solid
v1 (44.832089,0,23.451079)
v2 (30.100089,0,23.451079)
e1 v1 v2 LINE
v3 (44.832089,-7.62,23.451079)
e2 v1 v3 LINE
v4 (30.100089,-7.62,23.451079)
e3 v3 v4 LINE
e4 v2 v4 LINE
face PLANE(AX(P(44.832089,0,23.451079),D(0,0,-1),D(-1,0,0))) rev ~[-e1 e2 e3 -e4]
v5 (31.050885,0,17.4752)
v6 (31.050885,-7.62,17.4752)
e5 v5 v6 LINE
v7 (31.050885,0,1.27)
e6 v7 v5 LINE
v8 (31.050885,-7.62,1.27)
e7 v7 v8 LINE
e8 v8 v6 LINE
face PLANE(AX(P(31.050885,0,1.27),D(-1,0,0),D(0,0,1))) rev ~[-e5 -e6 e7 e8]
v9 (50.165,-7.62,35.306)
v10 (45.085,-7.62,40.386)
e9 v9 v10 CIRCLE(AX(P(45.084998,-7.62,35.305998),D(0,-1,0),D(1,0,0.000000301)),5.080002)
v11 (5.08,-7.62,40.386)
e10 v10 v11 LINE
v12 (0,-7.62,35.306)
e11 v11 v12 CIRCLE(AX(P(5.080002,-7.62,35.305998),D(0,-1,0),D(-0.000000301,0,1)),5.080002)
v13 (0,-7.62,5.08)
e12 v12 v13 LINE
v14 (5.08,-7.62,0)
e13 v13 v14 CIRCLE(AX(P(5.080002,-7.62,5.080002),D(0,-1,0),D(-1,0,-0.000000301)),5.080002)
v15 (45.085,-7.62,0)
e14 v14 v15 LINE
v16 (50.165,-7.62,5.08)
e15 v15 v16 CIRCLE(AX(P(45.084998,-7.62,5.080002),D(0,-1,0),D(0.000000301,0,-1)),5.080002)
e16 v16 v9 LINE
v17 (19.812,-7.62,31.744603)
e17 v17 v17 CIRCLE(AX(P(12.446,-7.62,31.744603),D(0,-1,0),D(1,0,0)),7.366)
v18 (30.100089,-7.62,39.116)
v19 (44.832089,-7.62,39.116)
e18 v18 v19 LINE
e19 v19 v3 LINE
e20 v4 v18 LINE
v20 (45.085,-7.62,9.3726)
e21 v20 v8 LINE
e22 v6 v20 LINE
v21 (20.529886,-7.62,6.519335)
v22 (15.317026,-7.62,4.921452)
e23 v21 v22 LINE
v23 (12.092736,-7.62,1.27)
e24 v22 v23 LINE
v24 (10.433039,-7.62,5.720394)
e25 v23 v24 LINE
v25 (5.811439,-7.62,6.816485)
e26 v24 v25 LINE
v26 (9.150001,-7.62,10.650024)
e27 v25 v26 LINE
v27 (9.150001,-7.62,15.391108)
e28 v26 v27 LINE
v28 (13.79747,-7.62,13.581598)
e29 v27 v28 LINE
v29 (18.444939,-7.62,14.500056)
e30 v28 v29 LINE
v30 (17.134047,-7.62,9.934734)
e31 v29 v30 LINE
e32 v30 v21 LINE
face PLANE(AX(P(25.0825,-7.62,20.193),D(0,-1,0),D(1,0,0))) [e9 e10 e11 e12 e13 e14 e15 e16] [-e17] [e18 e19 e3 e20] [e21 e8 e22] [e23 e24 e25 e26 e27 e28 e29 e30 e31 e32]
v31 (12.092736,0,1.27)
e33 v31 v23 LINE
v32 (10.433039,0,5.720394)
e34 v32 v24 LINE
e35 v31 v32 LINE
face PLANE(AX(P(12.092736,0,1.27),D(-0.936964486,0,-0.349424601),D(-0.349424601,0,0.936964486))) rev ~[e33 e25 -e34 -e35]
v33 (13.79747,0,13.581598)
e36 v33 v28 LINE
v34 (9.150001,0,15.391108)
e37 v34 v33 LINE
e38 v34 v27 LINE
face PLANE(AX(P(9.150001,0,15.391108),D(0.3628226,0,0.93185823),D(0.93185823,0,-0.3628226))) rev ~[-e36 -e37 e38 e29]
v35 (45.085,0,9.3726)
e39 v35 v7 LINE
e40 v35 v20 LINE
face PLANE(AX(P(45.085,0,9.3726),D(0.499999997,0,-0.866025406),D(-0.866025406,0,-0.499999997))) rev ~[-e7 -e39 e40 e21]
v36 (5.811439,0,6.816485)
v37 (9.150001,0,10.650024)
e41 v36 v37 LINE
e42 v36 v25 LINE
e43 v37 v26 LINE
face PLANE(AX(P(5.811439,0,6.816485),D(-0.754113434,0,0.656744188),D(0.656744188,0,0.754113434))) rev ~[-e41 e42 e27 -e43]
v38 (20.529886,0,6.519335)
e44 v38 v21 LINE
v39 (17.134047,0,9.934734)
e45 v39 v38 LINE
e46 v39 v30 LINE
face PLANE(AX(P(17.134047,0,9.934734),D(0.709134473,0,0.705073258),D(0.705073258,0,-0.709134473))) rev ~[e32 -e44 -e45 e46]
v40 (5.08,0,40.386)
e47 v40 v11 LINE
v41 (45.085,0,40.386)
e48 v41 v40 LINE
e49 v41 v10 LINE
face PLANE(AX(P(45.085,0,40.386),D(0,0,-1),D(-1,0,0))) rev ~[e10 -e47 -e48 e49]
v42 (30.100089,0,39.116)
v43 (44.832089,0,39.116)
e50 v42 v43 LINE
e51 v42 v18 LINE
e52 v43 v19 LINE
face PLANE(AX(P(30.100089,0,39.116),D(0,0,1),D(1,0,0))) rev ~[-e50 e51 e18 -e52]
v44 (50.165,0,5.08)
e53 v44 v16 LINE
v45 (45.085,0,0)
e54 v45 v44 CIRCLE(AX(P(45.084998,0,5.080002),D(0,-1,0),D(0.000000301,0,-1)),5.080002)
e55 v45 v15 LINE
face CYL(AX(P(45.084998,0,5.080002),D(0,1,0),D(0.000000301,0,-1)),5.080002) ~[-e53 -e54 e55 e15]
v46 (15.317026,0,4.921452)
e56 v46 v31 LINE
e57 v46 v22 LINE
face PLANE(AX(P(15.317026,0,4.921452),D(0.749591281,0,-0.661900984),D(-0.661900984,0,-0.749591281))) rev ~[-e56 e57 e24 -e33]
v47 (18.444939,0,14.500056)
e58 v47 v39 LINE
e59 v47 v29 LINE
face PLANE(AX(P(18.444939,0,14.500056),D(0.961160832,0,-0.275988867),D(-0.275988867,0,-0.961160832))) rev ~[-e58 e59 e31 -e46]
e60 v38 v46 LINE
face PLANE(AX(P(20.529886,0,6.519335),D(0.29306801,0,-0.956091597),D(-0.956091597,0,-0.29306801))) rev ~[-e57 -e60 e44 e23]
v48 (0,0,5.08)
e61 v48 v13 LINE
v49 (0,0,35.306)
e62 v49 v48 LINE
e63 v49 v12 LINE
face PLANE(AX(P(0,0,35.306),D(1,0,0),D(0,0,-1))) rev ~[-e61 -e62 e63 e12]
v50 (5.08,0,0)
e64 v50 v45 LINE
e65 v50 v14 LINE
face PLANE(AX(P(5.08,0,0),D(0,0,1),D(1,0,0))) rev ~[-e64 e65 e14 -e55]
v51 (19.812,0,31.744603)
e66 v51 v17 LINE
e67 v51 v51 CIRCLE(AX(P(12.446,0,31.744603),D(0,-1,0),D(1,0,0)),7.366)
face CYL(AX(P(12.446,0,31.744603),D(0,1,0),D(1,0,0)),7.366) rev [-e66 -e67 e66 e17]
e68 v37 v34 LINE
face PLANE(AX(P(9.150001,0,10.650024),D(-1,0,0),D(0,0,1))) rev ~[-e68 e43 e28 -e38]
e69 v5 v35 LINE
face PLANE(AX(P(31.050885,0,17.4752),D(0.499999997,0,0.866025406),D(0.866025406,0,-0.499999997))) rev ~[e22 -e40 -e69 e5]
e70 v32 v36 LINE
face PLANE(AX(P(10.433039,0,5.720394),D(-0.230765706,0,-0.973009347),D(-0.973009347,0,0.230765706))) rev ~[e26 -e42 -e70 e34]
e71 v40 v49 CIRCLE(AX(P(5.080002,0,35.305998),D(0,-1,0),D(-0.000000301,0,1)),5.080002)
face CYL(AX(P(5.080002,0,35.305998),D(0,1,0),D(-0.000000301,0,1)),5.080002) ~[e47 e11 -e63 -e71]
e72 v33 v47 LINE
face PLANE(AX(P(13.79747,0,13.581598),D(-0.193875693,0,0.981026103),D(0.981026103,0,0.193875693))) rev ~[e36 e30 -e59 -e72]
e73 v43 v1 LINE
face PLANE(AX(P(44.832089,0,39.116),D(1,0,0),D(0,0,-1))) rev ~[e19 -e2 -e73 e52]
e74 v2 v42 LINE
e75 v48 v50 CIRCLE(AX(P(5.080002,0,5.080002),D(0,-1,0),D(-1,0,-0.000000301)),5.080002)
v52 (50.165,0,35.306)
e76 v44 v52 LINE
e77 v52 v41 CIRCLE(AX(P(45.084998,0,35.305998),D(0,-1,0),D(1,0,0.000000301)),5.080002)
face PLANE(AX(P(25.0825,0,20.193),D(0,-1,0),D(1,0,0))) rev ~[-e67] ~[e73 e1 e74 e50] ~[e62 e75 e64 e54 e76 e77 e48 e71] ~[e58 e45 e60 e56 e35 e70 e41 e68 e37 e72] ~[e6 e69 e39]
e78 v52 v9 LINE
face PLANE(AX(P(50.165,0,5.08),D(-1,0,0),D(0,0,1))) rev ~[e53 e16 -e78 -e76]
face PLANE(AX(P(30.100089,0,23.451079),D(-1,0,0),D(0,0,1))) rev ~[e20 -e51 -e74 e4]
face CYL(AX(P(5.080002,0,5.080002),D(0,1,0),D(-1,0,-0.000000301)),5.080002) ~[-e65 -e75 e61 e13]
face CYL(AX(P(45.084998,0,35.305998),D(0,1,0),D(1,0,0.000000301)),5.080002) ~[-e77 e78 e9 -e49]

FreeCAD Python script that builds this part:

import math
import FreeCAD as App
import Part
import Sketcher
from FreeCAD import Vector
Q = App.Units.Quantity

doc = App.newDocument("Part")
body = doc.addObject("PartDesign::Body", "Body")

sketch1 = body.newObject("Sketcher::SketchObject", "Sketch")
sketch1.AttachmentSupport = (doc.getObject("XZ_Plane"), [""])
sketch1.MapMode = "FlatFace"
sketch1.addGeometry(Part.ArcOfCircle(Part.Circle(Vector(5.080002, 5.080002, 0), Vector(0, 0, 1), 5.080002), math.radians(-179.999983), math.radians(-90.000017)), False)
sketch1.addGeometry(Part.LineSegment(Vector(5.08, 0, 0), Vector(45.085, 0, 0)), False)
sketch1.addGeometry(Part.ArcOfCircle(Part.Circle(Vector(45.084998, 5.080002, 0), Vector(0, 0, 1), 5.080002), math.radians(-89.999983), math.radians(-0.000017)), False)
sketch1.addGeometry(Part.LineSegment(Vector(50.165, 5.08, 0), Vector(50.165, 35.306, 0)), False)
sketch1.addGeometry(Part.ArcOfCircle(Part.Circle(Vector(45.084998, 35.305998, 0), Vector(0, 0, 1), 5.080002), math.radians(0.000017), math.radians(89.999983)), False)
sketch1.addGeometry(Part.LineSegment(Vector(45.085, 40.386, 0), Vector(5.08, 40.386, 0)), False)
sketch1.addGeometry(Part.ArcOfCircle(Part.Circle(Vector(5.080002, 35.305998, 0), Vector(0, 0, 1), 5.080002), math.radians(90.000017), math.radians(179.999983)), False)
sketch1.addGeometry(Part.LineSegment(Vector(0, 35.306, 0), Vector(0, 5.08, 0)), False)
sketch1.addGeometry(Part.LineSegment(Vector(20.529886, 6.519335, 0), Vector(15.317026, 4.921452, 0)), False)
sketch1.addGeometry(Part.LineSegment(Vector(15.317026, 4.921452, 0), Vector(12.092736, 1.27, 0)), False)
sketch1.addGeometry(Part.LineSegment(Vector(12.092736, 1.27, 0), Vector(10.433039, 5.720394, 0)), False)
sketch1.addGeometry(Part.LineSegment(Vector(10.433039, 5.720394, 0), Vector(5.811439, 6.816485, 0)), False)
sketch1.addGeometry(Part.LineSegment(Vector(5.811439, 6.816485, 0), Vector(9.150001, 10.650024, 0)), False)
sketch1.addGeometry(Part.LineSegment(Vector(9.150001, 10.650024, 0), Vector(9.150001, 15.391108, 0)), False)
sketch1.addGeometry(Part.LineSegment(Vector(9.150001, 15.391108, 0), Vector(13.79747, 13.581598, 0)), False)
sketch1.addGeometry(Part.LineSegment(Vector(13.79747, 13.581598, 0), Vector(18.444939, 14.500056, 0)), False)
sketch1.addGeometry(Part.LineSegment(Vector(18.444939, 14.500056, 0), Vector(17.134047, 9.934734, 0)), False)
sketch1.addGeometry(Part.LineSegment(Vector(17.134047, 9.934734, 0), Vector(20.529886, 6.519335, 0)), False)
sketch1.addGeometry(Part.LineSegment(Vector(31.050885, 17.4752, 0), Vector(45.085, 9.3726, 0)), False)
sketch1.addGeometry(Part.LineSegment(Vector(45.085, 9.3726, 0), Vector(31.050885, 1.27, 0)), False)
sketch1.addGeometry(Part.LineSegment(Vector(31.050885, 1.27, 0), Vector(31.050885, 17.4752, 0)), False)
sketch1.addGeometry(Part.Circle(Vector(12.446, 31.744603, 0), Vector(0, 0, 1), 7.366), False)
sketch1.addGeometry(Part.LineSegment(Vector(30.100089, 23.451079, 0), Vector(30.100089, 39.116, 0)), False)
sketch1.addGeometry(Part.LineSegment(Vector(30.100089, 39.116, 0), Vector(44.832089, 39.116, 0)), False)
sketch1.addGeometry(Part.LineSegment(Vector(44.832089, 39.116, 0), Vector(44.832089, 23.451079, 0)), False)
sketch1.addGeometry(Part.LineSegment(Vector(44.832089, 23.451079, 0), Vector(30.100089, 23.451079, 0)), False)
sketch1.addConstraint(Sketcher.Constraint("Coincident", 0, 2, 1, 1))
sketch1.addConstraint(Sketcher.Constraint("Coincident", 1, 2, 2, 1))
sketch1.addConstraint(Sketcher.Constraint("Coincident", 2, 2, 3, 1))
sketch1.addConstraint(Sketcher.Constraint("Coincident", 3, 2, 4, 1))
sketch1.addConstraint(Sketcher.Constraint("Coincident", 4, 2, 5, 1))
sketch1.addConstraint(Sketcher.Constraint("Coincident", 5, 2, 6, 1))
sketch1.addConstraint(Sketcher.Constraint("Coincident", 6, 2, 7, 1))
sketch1.addConstraint(Sketcher.Constraint("Coincident", 7, 2, 0, 1))
sketch1.addConstraint(Sketcher.Constraint("Coincident", 8, 2, 9, 1))
sketch1.addConstraint(Sketcher.Constraint("Coincident", 9, 2, 10, 1))
sketch1.addConstraint(Sketcher.Constraint("Coincident", 10, 2, 11, 1))
sketch1.addConstraint(Sketcher.Constraint("Coincident", 11, 2, 12, 1))
sketch1.addConstraint(Sketcher.Constraint("Coincident", 12, 2, 13, 1))
sketch1.addConstraint(Sketcher.Constraint("Coincident", 13, 2, 14, 1))
sketch1.addConstraint(Sketcher.Constraint("Coincident", 14, 2, 15, 1))
sketch1.addConstraint(Sketcher.Constraint("Coincident", 15, 2, 16, 1))
sketch1.addConstraint(Sketcher.Constraint("Coincident", 16, 2, 17, 1))
sketch1.addConstraint(Sketcher.Constraint("Coincident", 17, 2, 8, 1))
sketch1.addConstraint(Sketcher.Constraint("Coincident", 18, 2, 19, 1))
sketch1.addConstraint(Sketcher.Constraint("Coincident", 19, 2, 20, 1))
sketch1.addConstraint(Sketcher.Constraint("Coincident", 20, 2, 18, 1))
sketch1.addConstraint(Sketcher.Constraint("Coincident", 22, 2, 23, 1))
sketch1.addConstraint(Sketcher.Constraint("Coincident", 23, 2, 24, 1))
sketch1.addConstraint(Sketcher.Constraint("Coincident", 24, 2, 25, 1))
sketch1.addConstraint(Sketcher.Constraint("Coincident", 25, 2, 22, 1))
sketch1.addConstraint(Sketcher.Constraint("Horizontal", 1))
sketch1.addConstraint(Sketcher.Constraint("Vertical", 3))
sketch1.addConstraint(Sketcher.Constraint("Horizontal", 5))
sketch1.addConstraint(Sketcher.Constraint("Vertical", 7))
sketch1.addConstraint(Sketcher.Constraint("Vertical", 13))
sketch1.addConstraint(Sketcher.Constraint("Vertical", 20))
sketch1.addConstraint(Sketcher.Constraint("Vertical", 22))
sketch1.addConstraint(Sketcher.Constraint("Horizontal", 23))
sketch1.addConstraint(Sketcher.Constraint("Vertical", 24))
sketch1.addConstraint(Sketcher.Constraint("Horizontal", 25))
sketch1.addConstraint(Sketcher.Constraint("PointOnObject", 0, 2, -1))
sketch1.addConstraint(Sketcher.Constraint("PointOnObject", 6, 2, -2))
sketch1.addConstraint(Sketcher.Constraint("Radius", 0, Q("0.2000001 in")))
sketch1.addConstraint(Sketcher.Constraint("Radius", 2, Q("0.2000001 in")))
sketch1.addConstraint(Sketcher.Constraint("Radius", 4, Q("0.2000001 in")))
sketch1.addConstraint(Sketcher.Constraint("Radius", 6, Q("0.2000001 in")))
sketch1.addConstraint(Sketcher.Constraint("Diameter", 21, Q("0.58 in")))
sketch1.addConstraint(Sketcher.Constraint("DistanceX", 23, 1, 23, 2, Q("0.58 in")))
sketch1.addConstraint(Sketcher.Constraint("DistanceY", 3, 1, 3, 2, Q("1.19 in")))
sketch1.addConstraint(Sketcher.Constraint("DistanceY", 7, 2, 7, 1, Q("1.19 in")))
sketch1.addConstraint(Sketcher.Constraint("DistanceX", -1, 1, 0, 2, Q("0.2 in")))
sketch1.addConstraint(Sketcher.Constraint("DistanceY", -1, 1, 2, 2, Q("0.2 in")))
sketch1.addConstraint(Sketcher.Constraint("DistanceX", -1, 1, 5, 2, Q("0.2 in")))
sketch1.addConstraint(Sketcher.Constraint("DistanceY", -1, 1, 7, 2, Q("0.2 in")))
sketch1.addConstraint(Sketcher.Constraint("DistanceX", 1, 2, 2, 2, Q("0.2 in")))
sketch1.addConstraint(Sketcher.Constraint("DistanceX", 4, 2, 3, 2, Q("0.2 in")))
sketch1.addConstraint(Sketcher.Constraint("DistanceY", 3, 2, 4, 2, Q("0.2 in")))
sketch1.addConstraint(Sketcher.Constraint("DistanceX", 18, 2, 2, 2, Q("0.2 in")))
sketch1.addConstraint(Sketcher.Constraint("DistanceX", 1, 1, 1, 2, Q("1.575 in")))
sketch1.addConstraint(Sketcher.Constraint("DistanceY", 20, 1, 20, 2, Q("0.638 in")))
sketch1.addConstraint(Sketcher.Constraint("DistanceX", -1, 1, 21, 3, Q("0.49 in")))
sketch1.addConstraint(Sketcher.Constraint("DistanceY", -1, 1, 9, 2, Q("0.05 in")))
sketch1.addConstraint(Sketcher.Constraint("DistanceY", -1, 1, 19, 2, Q("0.05 in")))
sketch1.addConstraint(Sketcher.Constraint("DistanceY", -1, 1, 22, 2, Q("1.54 in")))
sketch1.addConstraint(Sketcher.Constraint("Distance", 10, Q("0.187 in")))
sketch1.addConstraint(Sketcher.Constraint("Distance", 11, Q("0.187 in")))
sketch1.addConstraint(Sketcher.Constraint("Distance", 16, Q("0.187 in")))
sketch1.addConstraint(Sketcher.Constraint("Distance", 18, Q("0.638 in")))
sketch1.addConstraint(Sketcher.Constraint("Distance", 19, Q("0.638 in")))
sketch1.addConstraint(Sketcher.Constraint("DistanceY", 22, 1, 22, 2, Q("15.664921 mm")))
sketch1.addConstraint(Sketcher.Constraint("DistanceX", -1, 1, 12, 2, Q("9.150001 mm")))
sketch1.addConstraint(Sketcher.Constraint("DistanceY", 0, 3, 21, 3, Q("26.664601 mm")))
sketch1.addConstraint(Sketcher.Constraint("DistanceX", 11, 2, 10, 2, Q("4.6216 mm")))
sketch1.addConstraint(Sketcher.Constraint("DistanceX", 10, 2, 15, 2, Q("8.0119 mm")))
sketch1.addConstraint(Sketcher.Constraint("DistanceY", 17, 2, 16, 2, Q("3.415399 mm")))
sketch1.addConstraint(Sketcher.Constraint("DistanceX", 17, 2, 19, 2, Q("10.520999 mm")))
sketch1.addConstraint(Sketcher.Constraint("Distance", 8, Q("5.45226 mm")))
sketch1.addConstraint(Sketcher.Constraint("DistanceY", 13, 1, 13, 2, Q("4.741084 mm")))
sketch1.addConstraint(Sketcher.Constraint("DistanceX", -1, 1, 10, 2, Q("10.433039 mm")))
sketch1.addConstraint(Sketcher.Constraint("DistanceX", -1, 1, 14, 2, Q("13.79747 mm")))
sketch1.addConstraint(Sketcher.Constraint("DistanceX", -1, 1, 22, 2, Q("30.100089 mm")))
sketch1.addConstraint(Sketcher.Constraint("DistanceY", 8, 2, 0, 3, Q("0.15855 mm")))
sketch1.addConstraint(Sketcher.Constraint("DistanceX", 9, 2, 8, 2, Q("3.22429 mm")))
sketch1.addConstraint(Sketcher.Constraint("DistanceY", 8, 2, 10, 2, Q("0.798942 mm")))
sketch1.addConstraint(Sketcher.Constraint("DistanceY", 11, 2, 12, 2, Q("3.833539 mm")))
sketch1.addConstraint(Sketcher.Constraint("DistanceY", 14, 2, 13, 2, Q("1.80951 mm")))
sketch1.addConstraint(Sketcher.Constraint("DistanceY", 14, 2, 15, 2, Q("0.918458 mm")))
pad1 = body.newObject("PartDesign::Pad", "Pad")
pad1.Profile = sketch1
pad1.Length = Q("0.3 in")

doc.recompute()
